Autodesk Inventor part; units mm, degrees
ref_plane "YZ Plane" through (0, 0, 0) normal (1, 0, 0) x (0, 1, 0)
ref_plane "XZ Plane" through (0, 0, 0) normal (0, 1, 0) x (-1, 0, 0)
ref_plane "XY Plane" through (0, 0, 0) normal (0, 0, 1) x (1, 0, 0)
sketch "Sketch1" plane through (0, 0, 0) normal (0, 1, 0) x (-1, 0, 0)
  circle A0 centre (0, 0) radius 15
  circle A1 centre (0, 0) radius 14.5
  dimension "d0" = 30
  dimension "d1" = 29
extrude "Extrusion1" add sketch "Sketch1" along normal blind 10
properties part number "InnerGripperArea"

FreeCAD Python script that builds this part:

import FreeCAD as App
import Part
import Sketcher
from FreeCAD import Vector
Q = App.Units.Quantity

doc = App.newDocument("Part")
params = doc.addObject("Spreadsheet::Sheet", "Params")
for row, (alias, value) in enumerate([
    ("sketch1_diameter", "30 mm"),
    ("sketch1_diameter2", "29 mm"),
    ("pad1_length", "10 mm"),
], start=1):
    params.set(f"A{row}", alias)
    params.set(f"B{row}", "=" + value)
    params.setAlias(f"B{row}", alias)

body = doc.addObject("PartDesign::Body", "Body")

# Sketch on XZ plane
sketch1 = body.newObject("Sketcher::SketchObject", "Sketch")
sketch1.AttachmentSupport = (doc.getObject("XZ_Plane"), [""])
sketch1.MapMode = "FlatFace"
sketch1.addGeometry([
    Part.Circle(Vector(0, 0, 0), Vector(0, 0, 1), 15),
    Part.Circle(Vector(0, 0, 0), Vector(0, 0, 1), 14.5),
], False)
sketch1.addConstraint([
    Sketcher.Constraint("Coincident", 0, 3, -1, 1),
    Sketcher.Constraint("Coincident", 1, 3, -1, 1),
    Sketcher.Constraint("Diameter", 0, Q("30 mm")),
    Sketcher.Constraint("Diameter", 1, Q("29 mm")),
])
sketch1.setExpression("Constraints[2]", "Params.sketch1_diameter")
sketch1.setExpression("Constraints[3]", "Params.sketch1_diameter2")
pad1 = body.newObject("PartDesign::Pad", "Pad")
pad1.Profile = sketch1
pad1.setExpression("Length", "Params.pad1_length")
pad1.Reversed = True

doc.recompute()
